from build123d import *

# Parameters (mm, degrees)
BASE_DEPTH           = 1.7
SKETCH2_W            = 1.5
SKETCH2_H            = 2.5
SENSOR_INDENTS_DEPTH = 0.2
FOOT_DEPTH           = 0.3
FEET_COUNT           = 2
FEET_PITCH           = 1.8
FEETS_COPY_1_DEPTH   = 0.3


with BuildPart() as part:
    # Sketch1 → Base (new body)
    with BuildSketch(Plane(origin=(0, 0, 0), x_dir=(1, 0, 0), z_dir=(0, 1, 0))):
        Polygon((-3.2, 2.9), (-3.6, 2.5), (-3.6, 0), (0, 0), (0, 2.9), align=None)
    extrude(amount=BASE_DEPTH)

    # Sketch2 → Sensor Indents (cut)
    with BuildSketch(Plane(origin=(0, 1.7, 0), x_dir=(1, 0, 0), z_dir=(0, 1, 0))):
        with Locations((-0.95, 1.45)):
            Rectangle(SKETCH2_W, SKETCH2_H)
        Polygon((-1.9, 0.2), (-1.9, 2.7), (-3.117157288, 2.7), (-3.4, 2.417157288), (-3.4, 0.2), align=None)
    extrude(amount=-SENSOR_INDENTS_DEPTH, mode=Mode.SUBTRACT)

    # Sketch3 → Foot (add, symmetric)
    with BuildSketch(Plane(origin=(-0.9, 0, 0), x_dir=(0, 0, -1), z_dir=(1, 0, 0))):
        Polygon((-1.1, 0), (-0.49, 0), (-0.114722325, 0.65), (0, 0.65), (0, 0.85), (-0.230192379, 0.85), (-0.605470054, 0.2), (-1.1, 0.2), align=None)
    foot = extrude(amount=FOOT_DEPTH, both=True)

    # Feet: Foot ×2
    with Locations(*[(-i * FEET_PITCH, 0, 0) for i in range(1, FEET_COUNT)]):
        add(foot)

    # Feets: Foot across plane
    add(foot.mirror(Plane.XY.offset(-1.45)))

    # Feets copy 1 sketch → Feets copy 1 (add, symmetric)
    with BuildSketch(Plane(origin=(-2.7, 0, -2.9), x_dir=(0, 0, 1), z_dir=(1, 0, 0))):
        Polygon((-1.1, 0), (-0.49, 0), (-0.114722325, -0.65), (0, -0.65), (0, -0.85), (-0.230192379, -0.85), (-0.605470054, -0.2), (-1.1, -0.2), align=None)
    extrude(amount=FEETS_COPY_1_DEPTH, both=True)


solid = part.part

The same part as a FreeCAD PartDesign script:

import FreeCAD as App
import Part
import Sketcher
from FreeCAD import Vector
Q = App.Units.Quantity


def add_polygon(sketch, points):
    """Adds a closed chain of lines whose ends are joined by coincident constraints."""
    first, n = sketch.GeometryCount, len(points)
    for a, b in zip(points, points[1:] + points[:1]):
        sketch.addGeometry(Part.LineSegment(App.Vector(*a, 0), App.Vector(*b, 0)), False)
    for i in range(n):
        sketch.addConstraint(Sketcher.Constraint("Coincident", first + i, 2, first + (i + 1) % n, 1))

doc = App.newDocument("Part")
body = doc.addObject("PartDesign::Body", "Body")

sketch1 = body.newObject("Sketcher::SketchObject", "Sketch")
sketch1.AttachmentSupport = (doc.getObject("XZ_Plane"), [""])
sketch1.MapMode = "FlatFace"
add_polygon(sketch1, [(-3.2, -2.9), (-3.6, -2.5), (-3.6, 0), (0, 0), (0, -2.9)])
sketch1.addConstraint([
    Sketcher.Constraint("Vertical", 1),
    Sketcher.Constraint("Horizontal", 2),
    Sketcher.Constraint("Vertical", 3),
    Sketcher.Constraint("Horizontal", 4),
    Sketcher.Constraint("Coincident", 2, 2, -1, 1),
    Sketcher.Constraint("Angle", 0, Q("135 deg")),
    Sketcher.Constraint("DistanceX", 2, 1, 2, 2, Q("3.6 mm")),
    Sketcher.Constraint("DistanceX", 4, 2, 4, 1, Q("3.2 mm")),
    Sketcher.Constraint("DistanceY", 1, 1, 1, 2, Q("2.5 mm")),
])
pad1 = body.newObject("PartDesign::Pad", "Pad")
pad1.Profile = sketch1
pad1.Length = 1.7
pad1.Reversed = True

sketch2 = body.newObject("Sketcher::SketchObject", "Sketch001")
sketch2.AttachmentSupport = (doc.getObject("XZ_Plane"), [""])
sketch2.MapMode = "FlatFace"
sketch2.AttachmentOffset = App.Placement(Vector(0, 0, -1.7), App.Rotation())
add_polygon(sketch2, [(-1.7, -2.7), (-1.7, -0.2), (-0.2, -0.2), (-0.2, -2.7)])
add_polygon(sketch2, [(-1.9, -0.2), (-1.9, -2.7), (-3.12, -2.7), (-3.4, -2.42), (-3.4, -0.2)])
sketch2.addConstraint([
    Sketcher.Constraint("Vertical", 0),
    Sketcher.Constraint("Horizontal", 1),
    Sketcher.Constraint("Vertical", 2),
    Sketcher.Constraint("Horizontal", 3),
    Sketcher.Constraint("Vertical", 4),
    Sketcher.Constraint("Horizontal", 5),
    Sketcher.Constraint("Vertical", 7),
    Sketcher.Constraint("Horizontal", 8),
    Sketcher.Constraint("Horizontal", 3, 2, 4, 2),
    Sketcher.Constraint("Horizontal", 1, 2, 7, 2),
    Sketcher.Constraint("Equal", 3, 8),
    Sketcher.Constraint("Angle", 6, Q("135 deg")),
    Sketcher.Constraint("DistanceX", 1, 1, 1, 2, Q("1.5 mm")),
    Sketcher.Constraint("DistanceY", 0, 1, 0, 2, Q("2.5 mm")),
    Sketcher.Constraint("Distance", 6, Q("0.4 mm")),
    Sketcher.Constraint("DistanceX", 0, 2, -1, 1, Q("1.7 mm")),
    Sketcher.Constraint("DistanceY", 0, 2, -1, 1, Q("0.2 mm")),
    Sketcher.Constraint("DistanceX", 4, 2, -1, 1, Q("1.9 mm")),
])
pocket1 = body.newObject("PartDesign::Pocket", "Pocket")
pocket1.Profile = sketch2
pocket1.Length = 0.2
pocket1.Reversed = True

sketch3 = body.newObject("Sketcher::SketchObject", "Sketch002")
sketch3.AttachmentSupport = (doc.getObject("YZ_Plane"), [""])
sketch3.MapMode = "FlatFace"
sketch3.AttachmentOffset = App.Placement(Vector(0, 0, -0.9), App.Rotation())
add_polygon(sketch3, [(0, 1.1), (0, 0.49), (0.65, 0.11), (0.65, 0), (0.85, 0), (0.85, 0.23), (0.2, 0.61), (0.2, 1.1)])
sketch3.addConstraint([
    Sketcher.Constraint("Vertical", 0),
    Sketcher.Constraint("Vertical", 2),
    Sketcher.Constraint("Horizontal", 3),
    Sketcher.Constraint("Vertical", 4),
    Sketcher.Constraint("Vertical", 6),
    Sketcher.Constraint("Horizontal", 7),
    Sketcher.Constraint("PointOnObject", 0, 2, -2),
    Sketcher.Constraint("PointOnObject", 2, 2, -1),
    Sketcher.Constraint("Parallel", 1, 5),
    Sketcher.Constraint("Equal", 3, 7),
    Sketcher.Constraint("Angle", 1, Q("-30 deg")),
    Sketcher.Constraint("DistanceX", 3, 1, 3, 2, Q("0.2 mm")),
    Sketcher.Constraint("DistanceY", 0, 2, 0, 1, Q("0.61 mm")),
    Sketcher.Constraint("DistanceY", -1, 1, 6, 2, Q("1.1 mm")),
    Sketcher.Constraint("DistanceX", -1, 1, 1, 2, Q("0.65 mm")),
    Sketcher.Constraint("DistanceY", 6, 1, 6, 2, Q("0.49453 mm")),
])
pad2 = body.newObject("PartDesign::Pad", "Pad001")
pad2.Profile = sketch3
pad2.Length = 0.6
pad2.Midplane = True
doc.recompute()

linearpattern = body.newObject("PartDesign::LinearPattern", "LinearPattern")
linearpattern.Originals = [pad2]
linearpattern.Direction = (doc.getObject("X_Axis"), [""])
linearpattern.Mode = "offset"
linearpattern.Offset = 1.8
linearpattern.Occurrences = 2
linearpattern.Reversed = True
body.Tip = linearpattern
doc.recompute()

datumplane = body.newObject("PartDesign::Plane", "DatumPlane")
datumplane.AttachmentSupport = (doc.getObject("XY_Plane"), [""])
datumplane.MapMode = "FlatFace"
datumplane.AttachmentOffset = App.Placement(Vector(0, 0, -1.45), App.Rotation())
mirrored = body.newObject("PartDesign::Mirrored", "Mirrored")
mirrored.Originals = [pad2]
mirrored.MirrorPlane = (datumplane, [""])
body.Tip = mirrored

sketch4 = body.newObject("Sketcher::SketchObject", "Sketch003")
sketch4.AttachmentSupport = (doc.getObject("YZ_Plane"), [""])
sketch4.MapMode = "FlatFace"
sketch4.AttachmentOffset = App.Placement(Vector(0, 0, -2.7), App.Rotation())
add_polygon(sketch4, [(0, -3.39), (0, -4), (0.2, -4), (0.2, -3.51), (0.85, -3.13), (0.85, -2.9), (0.65, -2.9), (0.65, -3.01)])
sketch4.addConstraint([
    Sketcher.Constraint("Vertical", 0),
    Sketcher.Constraint("Horizontal", 1),
    Sketcher.Constraint("Vertical", 2),
    Sketcher.Constraint("Vertical", 4),
    Sketcher.Constraint("Horizontal", 5),
    Sketcher.Constraint("Vertical", 6),
    Sketcher.Constraint("PointOnObject", 0, 2, -2),
    Sketcher.Constraint("Parallel", 3, 7),
    Sketcher.Constraint("Equal", 1, 5),
    Sketcher.Constraint("Angle", 3, Q("30 deg")),
    Sketcher.Constraint("DistanceX", 1, 1, 1, 2, Q("0.2 mm")),
    Sketcher.Constraint("DistanceY", 0, 2, -1, 1, Q("4 mm")),
    Sketcher.Constraint("DistanceY", 0, 2, 0, 1, Q("0.61 mm")),
    Sketcher.Constraint("DistanceY", 4, 2, -1, 1, Q("2.9 mm")),
    Sketcher.Constraint("DistanceX", -1, 1, 3, 2, Q("0.85 mm")),
    Sketcher.Constraint("DistanceY", 2, 1, 2, 2, Q("0.49453 mm")),
])
pad3 = body.newObject("PartDesign::Pad", "Pad002")
pad3.Profile = sketch4
pad3.Length = 0.6
pad3.Midplane = True

doc.recompute()
